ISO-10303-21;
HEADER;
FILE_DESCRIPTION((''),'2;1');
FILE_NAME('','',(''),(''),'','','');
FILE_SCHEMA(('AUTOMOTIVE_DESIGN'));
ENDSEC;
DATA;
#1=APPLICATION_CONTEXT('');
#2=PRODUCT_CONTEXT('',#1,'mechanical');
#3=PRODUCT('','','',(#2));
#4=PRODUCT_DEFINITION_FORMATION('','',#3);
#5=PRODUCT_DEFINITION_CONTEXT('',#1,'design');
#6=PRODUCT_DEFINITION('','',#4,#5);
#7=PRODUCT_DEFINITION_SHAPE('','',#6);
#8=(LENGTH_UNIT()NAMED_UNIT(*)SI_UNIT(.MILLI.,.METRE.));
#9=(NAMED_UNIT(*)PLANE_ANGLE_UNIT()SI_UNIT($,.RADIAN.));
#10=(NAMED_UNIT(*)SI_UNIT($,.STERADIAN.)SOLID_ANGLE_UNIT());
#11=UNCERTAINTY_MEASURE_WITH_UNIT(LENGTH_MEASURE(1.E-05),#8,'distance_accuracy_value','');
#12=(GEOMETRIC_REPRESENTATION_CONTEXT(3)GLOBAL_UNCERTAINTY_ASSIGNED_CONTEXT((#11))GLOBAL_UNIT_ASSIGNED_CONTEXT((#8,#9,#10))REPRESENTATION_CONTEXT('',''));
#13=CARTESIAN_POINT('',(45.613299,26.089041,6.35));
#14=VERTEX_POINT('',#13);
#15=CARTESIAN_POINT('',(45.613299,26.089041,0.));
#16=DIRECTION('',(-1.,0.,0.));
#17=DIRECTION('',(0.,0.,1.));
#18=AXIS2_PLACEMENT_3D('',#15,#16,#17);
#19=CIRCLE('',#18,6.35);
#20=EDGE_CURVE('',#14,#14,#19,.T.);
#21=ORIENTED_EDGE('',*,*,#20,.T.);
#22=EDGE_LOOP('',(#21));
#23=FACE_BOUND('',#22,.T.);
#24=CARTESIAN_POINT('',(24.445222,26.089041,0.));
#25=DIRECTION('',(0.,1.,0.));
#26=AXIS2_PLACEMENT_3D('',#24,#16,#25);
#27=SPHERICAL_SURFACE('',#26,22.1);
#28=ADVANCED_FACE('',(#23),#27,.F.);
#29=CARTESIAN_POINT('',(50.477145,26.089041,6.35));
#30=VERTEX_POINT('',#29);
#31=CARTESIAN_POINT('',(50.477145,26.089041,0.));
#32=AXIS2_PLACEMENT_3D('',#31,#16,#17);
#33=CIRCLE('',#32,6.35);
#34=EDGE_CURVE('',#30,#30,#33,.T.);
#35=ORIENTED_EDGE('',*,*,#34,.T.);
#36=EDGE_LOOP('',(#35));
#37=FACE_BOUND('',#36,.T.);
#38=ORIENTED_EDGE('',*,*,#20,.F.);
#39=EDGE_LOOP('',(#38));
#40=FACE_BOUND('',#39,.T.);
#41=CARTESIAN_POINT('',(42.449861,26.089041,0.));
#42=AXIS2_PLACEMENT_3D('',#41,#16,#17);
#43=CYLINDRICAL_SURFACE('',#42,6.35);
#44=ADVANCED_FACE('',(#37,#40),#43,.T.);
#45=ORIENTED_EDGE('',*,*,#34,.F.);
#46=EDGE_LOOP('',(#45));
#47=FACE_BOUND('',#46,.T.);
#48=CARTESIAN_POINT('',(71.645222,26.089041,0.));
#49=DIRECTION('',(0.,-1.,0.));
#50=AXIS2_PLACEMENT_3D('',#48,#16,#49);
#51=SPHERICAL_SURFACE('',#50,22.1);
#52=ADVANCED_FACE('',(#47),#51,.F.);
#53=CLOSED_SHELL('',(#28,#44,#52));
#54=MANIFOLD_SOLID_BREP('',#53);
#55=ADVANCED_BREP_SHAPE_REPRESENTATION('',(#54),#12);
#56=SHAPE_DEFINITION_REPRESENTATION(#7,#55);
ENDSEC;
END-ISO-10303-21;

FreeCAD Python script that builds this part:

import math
import FreeCAD as App
import Part
import Sketcher

V = App.Vector
Q = App.Units.Quantity

doc = App.newDocument("Part")
params = doc.addObject("Spreadsheet::Sheet", "Params")
for row, (alias, value) in enumerate([
    ("sketch1_radius", "22.1 mm"),
    ("sketch1_width", "3 mm"),
    ("revolution_angle", "360 deg"),
], start=1):
    params.set(f"A{row}", alias)
    params.set(f"B{row}", "=" + value)
    params.setAlias(f"B{row}", alias)

body = doc.addObject("PartDesign::Body", "Body")

sketch1 = doc.addObject("Sketcher::SketchObject", "Sketch")
body.addObject(sketch1)
sketch1.AttachmentSupport = (doc.XY_Plane, [""])
sketch1.MapMode = "FlatFace"
sketch1.addGeometry(Part.LineSegment(V(46.5, 26.1, 0), V(49.5, 26.1, 0)), False)
sketch1.addGeometry(Part.ArcOfCircle(Part.Circle(V(71.6, 26.1, 0), V(0, 0, 1), 22.1), math.radians(163.3), math.radians(180)), False)
sketch1.addGeometry(Part.LineSegment(V(50.5, 32.4, 0), V(45.6, 32.4, 0)), False)
sketch1.addGeometry(Part.ArcOfCircle(Part.Circle(V(24.4, 26.1, 0), V(0, 0, 1), 22.1), math.radians(0), math.radians(16.7)), False)
sketch1.addGeometry(Part.LineSegment(V(24.4, 26.1, 0), V(71.6, 26.1, 0)), True)
sketch1.addConstraint(Sketcher.Constraint("Coincident", 0, 2, 1, 2))
sketch1.addConstraint(Sketcher.Constraint("Coincident", 1, 1, 2, 1))
sketch1.addConstraint(Sketcher.Constraint("Coincident", 2, 2, 3, 2))
sketch1.addConstraint(Sketcher.Constraint("Coincident", 3, 1, 0, 1))
sketch1.addConstraint(Sketcher.Constraint("Horizontal", 0))
sketch1.addConstraint(Sketcher.Constraint("Horizontal", 2))
sketch1.addConstraint(Sketcher.Constraint("Horizontal", 4))
sketch1.addConstraint(Sketcher.Constraint("Coincident", 4, 1, 3, 3))
sketch1.addConstraint(Sketcher.Constraint("Coincident", 4, 2, 1, 3))
sketch1.addConstraint(Sketcher.Constraint("Equal", 1, 3))
sketch1.addConstraint(Sketcher.Constraint("Horizontal", 3, 3, 0, 2))
sketch1.addConstraint(Sketcher.Constraint("Radius", 1, Q("22.1 mm")))
sketch1.addConstraint(Sketcher.Constraint("DistanceX", 0, 1, 0, 2, Q("3 mm")))
sketch1.addConstraint(Sketcher.Constraint("DistanceY", 0, 2, 1, 1, Q("6.35 mm")))
sketch1.addConstraint(Sketcher.Constraint("DistanceX", -1, 1, 2, 2, Q("45.613299 mm")))
sketch1.addConstraint(Sketcher.Constraint("DistanceY", -1, 1, 1, 3, Q("26.089041 mm")))
sketch1.setExpression("Constraints[11]", "Params.sketch1_radius")
sketch1.setExpression("Constraints[12]", "Params.sketch1_width")
revolution = doc.addObject("PartDesign::Revolution", "Revolution")
body.addObject(revolution)
revolution.Profile = sketch1
revolution.ReferenceAxis = (sketch1, ["Axis0"])
revolution.setExpression("Angle", "Params.revolution_angle")

doc.recompute()
